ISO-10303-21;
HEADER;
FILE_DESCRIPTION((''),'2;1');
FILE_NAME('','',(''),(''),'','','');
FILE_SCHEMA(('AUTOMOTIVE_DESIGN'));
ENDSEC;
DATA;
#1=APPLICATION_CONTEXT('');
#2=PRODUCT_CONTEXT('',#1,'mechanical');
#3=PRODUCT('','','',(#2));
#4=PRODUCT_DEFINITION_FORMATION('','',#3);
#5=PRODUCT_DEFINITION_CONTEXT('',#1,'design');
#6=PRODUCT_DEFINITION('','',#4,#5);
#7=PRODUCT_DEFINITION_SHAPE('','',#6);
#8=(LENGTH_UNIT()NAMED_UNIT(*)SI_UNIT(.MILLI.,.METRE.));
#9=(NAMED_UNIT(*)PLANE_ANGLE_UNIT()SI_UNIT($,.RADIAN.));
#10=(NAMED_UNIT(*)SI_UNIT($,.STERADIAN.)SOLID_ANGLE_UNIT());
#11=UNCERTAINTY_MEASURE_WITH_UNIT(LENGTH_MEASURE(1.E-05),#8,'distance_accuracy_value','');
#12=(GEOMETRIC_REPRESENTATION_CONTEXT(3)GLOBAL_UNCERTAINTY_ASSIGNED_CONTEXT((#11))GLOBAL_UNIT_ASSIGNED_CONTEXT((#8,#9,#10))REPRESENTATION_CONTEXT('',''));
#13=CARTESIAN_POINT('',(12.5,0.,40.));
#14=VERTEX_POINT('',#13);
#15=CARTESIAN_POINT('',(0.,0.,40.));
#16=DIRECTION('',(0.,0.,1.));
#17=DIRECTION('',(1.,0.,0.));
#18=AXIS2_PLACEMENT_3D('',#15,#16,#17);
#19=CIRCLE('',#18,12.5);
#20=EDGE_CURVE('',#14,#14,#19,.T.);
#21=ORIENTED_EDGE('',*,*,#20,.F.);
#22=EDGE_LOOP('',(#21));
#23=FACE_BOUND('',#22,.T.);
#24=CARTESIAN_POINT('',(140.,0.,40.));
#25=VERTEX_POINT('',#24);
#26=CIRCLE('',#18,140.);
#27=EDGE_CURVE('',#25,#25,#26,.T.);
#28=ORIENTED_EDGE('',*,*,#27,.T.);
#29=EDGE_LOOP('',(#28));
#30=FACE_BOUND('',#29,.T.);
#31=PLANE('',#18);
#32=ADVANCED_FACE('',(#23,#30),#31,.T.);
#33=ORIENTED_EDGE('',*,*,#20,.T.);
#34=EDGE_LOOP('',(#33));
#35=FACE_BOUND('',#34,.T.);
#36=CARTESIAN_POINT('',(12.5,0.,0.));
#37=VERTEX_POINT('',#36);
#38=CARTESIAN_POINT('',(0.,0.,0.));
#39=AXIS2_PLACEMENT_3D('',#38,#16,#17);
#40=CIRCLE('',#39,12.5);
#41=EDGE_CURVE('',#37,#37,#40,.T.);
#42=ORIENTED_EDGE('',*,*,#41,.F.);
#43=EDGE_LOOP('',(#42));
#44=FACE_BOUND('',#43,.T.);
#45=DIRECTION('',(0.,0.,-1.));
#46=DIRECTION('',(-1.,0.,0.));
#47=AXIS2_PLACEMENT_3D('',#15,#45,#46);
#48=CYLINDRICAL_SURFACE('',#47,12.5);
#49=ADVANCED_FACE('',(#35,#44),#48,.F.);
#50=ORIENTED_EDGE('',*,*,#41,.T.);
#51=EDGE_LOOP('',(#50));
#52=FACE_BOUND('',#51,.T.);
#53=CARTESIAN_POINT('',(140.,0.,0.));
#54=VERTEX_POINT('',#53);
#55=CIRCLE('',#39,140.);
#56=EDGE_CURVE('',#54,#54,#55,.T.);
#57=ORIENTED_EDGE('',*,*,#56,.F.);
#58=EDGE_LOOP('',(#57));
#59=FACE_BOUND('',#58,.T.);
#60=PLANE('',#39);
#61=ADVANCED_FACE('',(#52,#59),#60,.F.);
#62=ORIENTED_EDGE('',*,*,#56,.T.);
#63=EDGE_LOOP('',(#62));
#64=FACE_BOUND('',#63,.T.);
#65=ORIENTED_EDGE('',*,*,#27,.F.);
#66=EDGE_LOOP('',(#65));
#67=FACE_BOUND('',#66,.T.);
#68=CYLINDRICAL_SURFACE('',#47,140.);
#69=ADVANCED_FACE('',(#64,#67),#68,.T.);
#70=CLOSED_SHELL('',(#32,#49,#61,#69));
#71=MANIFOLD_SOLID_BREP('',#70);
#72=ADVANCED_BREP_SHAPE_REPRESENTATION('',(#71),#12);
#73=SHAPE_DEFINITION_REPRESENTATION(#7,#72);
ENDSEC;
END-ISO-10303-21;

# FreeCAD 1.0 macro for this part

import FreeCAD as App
import Part
import Sketcher

doc = App.newDocument("Part")
body = doc.addObject("PartDesign::Body", "Body")

# Sketch on XY plane
sketch1 = body.newObject("Sketcher::SketchObject", "Sketch")
sketch1.AttachmentSupport = (doc.getObject("XY_Plane"), [""])
sketch1.MapMode = "FlatFace"
sketch1.addGeometry(Part.Circle(App.Vector(0, 0, 0), App.Vector(0, 0, 1), 140), False)
sketch1.addGeometry(Part.Circle(App.Vector(0, 0, 0), App.Vector(0, 0, 1), 12), False)
sketch1.addConstraint(Sketcher.Constraint("Coincident", 0, 3, -1, 1))
sketch1.addConstraint(Sketcher.Constraint("Coincident", 1, 3, -1, 1))
sketch1.addConstraint(Sketcher.Constraint("Diameter", 0, 280.0))
sketch1.addConstraint(Sketcher.Constraint("Diameter", 1, 25.0))
pad1 = body.newObject("PartDesign::Pad", "Pad")
pad1.Profile = sketch1
pad1.Length = 40

doc.recompute()
